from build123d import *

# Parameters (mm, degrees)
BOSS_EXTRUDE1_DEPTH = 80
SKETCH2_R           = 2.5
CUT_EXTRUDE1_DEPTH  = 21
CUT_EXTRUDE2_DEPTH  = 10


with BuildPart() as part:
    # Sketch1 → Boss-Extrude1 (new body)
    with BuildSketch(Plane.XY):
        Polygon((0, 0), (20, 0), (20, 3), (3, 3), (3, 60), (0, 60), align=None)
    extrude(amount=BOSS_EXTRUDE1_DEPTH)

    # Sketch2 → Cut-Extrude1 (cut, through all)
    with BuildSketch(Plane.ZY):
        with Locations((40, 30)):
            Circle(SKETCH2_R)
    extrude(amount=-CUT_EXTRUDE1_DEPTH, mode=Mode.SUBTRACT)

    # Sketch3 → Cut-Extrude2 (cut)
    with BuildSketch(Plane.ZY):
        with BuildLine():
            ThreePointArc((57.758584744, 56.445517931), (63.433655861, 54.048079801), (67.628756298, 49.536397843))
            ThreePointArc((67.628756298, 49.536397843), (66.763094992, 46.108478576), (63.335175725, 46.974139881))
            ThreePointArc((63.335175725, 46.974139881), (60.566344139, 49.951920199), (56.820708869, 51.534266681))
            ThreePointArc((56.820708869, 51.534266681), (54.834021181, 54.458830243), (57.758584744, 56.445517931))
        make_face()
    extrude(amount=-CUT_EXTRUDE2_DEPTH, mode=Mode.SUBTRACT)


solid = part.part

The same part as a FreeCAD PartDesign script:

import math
import FreeCAD as App
import Part
import Sketcher
from FreeCAD import Vector

doc = App.newDocument("Part")
params = doc.addObject("Spreadsheet::Sheet", "Params")
for row, (alias, value) in enumerate([
    ("sketch1_width", "20 mm"),
    ("sketch1_width2", "17 mm"),
    ("sketch1_height", "57 mm"),
    ("pad1_length", "80 mm"),
    ("sketch2_diameter", "5 mm"),
    ("sketch3_radius", "2.5 mm"),
    ("pocket2_length", "10 mm"),
], start=1):
    params.set(f"A{row}", alias)
    params.set(f"B{row}", "=" + value)
    params.setAlias(f"B{row}", alias)

body = doc.addObject("PartDesign::Body", "Body")

# Sketch on XY plane
sketch1 = body.newObject("Sketcher::SketchObject", "Sketch")
sketch1.AttachmentSupport = (doc.getObject("XY_Plane"), [""])
sketch1.MapMode = "FlatFace"
sketch1.addGeometry(Part.LineSegment(Vector(0, 0, 0), Vector(20, 0, 0)), False)
sketch1.addGeometry(Part.LineSegment(Vector(20, 0, 0), Vector(20, 3, 0)), False)
sketch1.addGeometry(Part.LineSegment(Vector(20, 3, 0), Vector(3, 3, 0)), False)
sketch1.addGeometry(Part.LineSegment(Vector(3, 3, 0), Vector(3, 60, 0)), False)
sketch1.addGeometry(Part.LineSegment(Vector(3, 60, 0), Vector(0, 60, 0)), False)
sketch1.addGeometry(Part.LineSegment(Vector(0, 60, 0), Vector(0, 0, 0)), False)
sketch1.addConstraint(Sketcher.Constraint("Coincident", 0, 2, 1, 1))
sketch1.addConstraint(Sketcher.Constraint("Coincident", 1, 2, 2, 1))
sketch1.addConstraint(Sketcher.Constraint("Coincident", 2, 2, 3, 1))
sketch1.addConstraint(Sketcher.Constraint("Coincident", 3, 2, 4, 1))
sketch1.addConstraint(Sketcher.Constraint("Coincident", 4, 2, 5, 1))
sketch1.addConstraint(Sketcher.Constraint("Coincident", 5, 2, 0, 1))
sketch1.addConstraint(Sketcher.Constraint("Horizontal", 0))
sketch1.addConstraint(Sketcher.Constraint("Vertical", 1))
sketch1.addConstraint(Sketcher.Constraint("Horizontal", 2))
sketch1.addConstraint(Sketcher.Constraint("Vertical", 3))
sketch1.addConstraint(Sketcher.Constraint("Horizontal", 4))
sketch1.addConstraint(Sketcher.Constraint("Vertical", 5))
sketch1.addConstraint(Sketcher.Constraint("Coincident", 5, 2, -1, 1))
sketch1.addConstraint(Sketcher.Constraint("Equal", 4, 1))
sketch1.addConstraint(Sketcher.Constraint("DistanceX", 0, 1, 0, 2, 20.0))
sketch1.addConstraint(Sketcher.Constraint("DistanceX", 2, 2, 2, 1, 17.0))
sketch1.addConstraint(Sketcher.Constraint("DistanceY", 3, 1, 3, 2, 57.0))
sketch1.setExpression("Constraints[14]", "Params.sketch1_width")
sketch1.setExpression("Constraints[15]", "Params.sketch1_width2")
sketch1.setExpression("Constraints[16]", "Params.sketch1_height")
pad1 = body.newObject("PartDesign::Pad", "Pad")
pad1.Profile = sketch1
pad1.setExpression("Length", "Params.pad1_length")

# Sketch on YZ plane
sketch2 = body.newObject("Sketcher::SketchObject", "Sketch001")
sketch2.AttachmentSupport = (doc.getObject("YZ_Plane"), [""])
sketch2.MapMode = "FlatFace"
sketch2.addGeometry(Part.Circle(Vector(30, 40, 0), Vector(0, 0, 1), 2.5), False)
sketch2.addConstraint(Sketcher.Constraint("Diameter", 0, 5.0))
sketch2.addConstraint(Sketcher.Constraint("DistanceX", -1, 1, 0, 3, 30.0))
sketch2.addConstraint(Sketcher.Constraint("DistanceY", -1, 1, 0, 3, 40.0))
sketch2.setExpression("Constraints[0]", "Params.sketch2_diameter")
pocket1 = body.newObject("PartDesign::Pocket", "Pocket")
pocket1.Profile = sketch2
pocket1.Type = "ThroughAll"
pocket1.Reversed = True

# Sketch on YZ plane
sketch3 = body.newObject("Sketcher::SketchObject", "Sketch002")
sketch3.AttachmentSupport = (doc.getObject("YZ_Plane"), [""])
sketch3.MapMode = "FlatFace"
sketch3.addGeometry(Part.ArcOfCircle(Part.Circle(Vector(42, 55, 0), Vector(0, 0, 1), 14.706556), math.radians(10.811308), math.radians(59.172733)), False)
sketch3.addGeometry(Part.ArcOfCircle(Part.Circle(Vector(53.989892, 57.289647, 0), Vector(0, 0, 1), 2.5), math.radians(-169.188692), math.radians(10.811308)), False)
sketch3.addGeometry(Part.ArcOfCircle(Part.Circle(Vector(42, 55, 0), Vector(0, 0, 1), 9.706556), math.radians(10.811308), math.radians(59.172733)), False)
sketch3.addGeometry(Part.ArcOfCircle(Part.Circle(Vector(48.255269, 65.481966, 0), Vector(0, 0, 1), 2.5), math.radians(59.172733), math.radians(239.172732)), False)
sketch3.addConstraint(Sketcher.Constraint("Tangent", 0, 1, 1, 2))
sketch3.addConstraint(Sketcher.Constraint("Tangent", 1, 1, 2, 1))
sketch3.addConstraint(Sketcher.Constraint("Tangent", 2, 2, 3, 2))
sketch3.addConstraint(Sketcher.Constraint("Tangent", 3, 1, 0, 2))
sketch3.addConstraint(Sketcher.Constraint("Coincident", 2, 3, 0, 3))
sketch3.addConstraint(Sketcher.Constraint("Radius", 1, 2.5))
sketch3.addConstraint(Sketcher.Constraint("DistanceX", -1, 1, 0, 3, 42.0))
sketch3.addConstraint(Sketcher.Constraint("DistanceY", -1, 1, 0, 3, 55.0))
sketch3.addConstraint(Sketcher.Constraint("Radius", 0, 14.706556))
sketch3.addConstraint(Sketcher.Constraint("DistanceX", -1, 1, 3, 3, 48.255269))
sketch3.addConstraint(Sketcher.Constraint("DistanceY", -1, 1, 1, 1, 56.820709))
sketch3.setExpression("Constraints[5]", "Params.sketch3_radius")
pocket2 = body.newObject("PartDesign::Pocket", "Pocket001")
pocket2.Profile = sketch3
pocket2.setExpression("Length", "Params.pocket2_length")
pocket2.Reversed = True

doc.recompute()
